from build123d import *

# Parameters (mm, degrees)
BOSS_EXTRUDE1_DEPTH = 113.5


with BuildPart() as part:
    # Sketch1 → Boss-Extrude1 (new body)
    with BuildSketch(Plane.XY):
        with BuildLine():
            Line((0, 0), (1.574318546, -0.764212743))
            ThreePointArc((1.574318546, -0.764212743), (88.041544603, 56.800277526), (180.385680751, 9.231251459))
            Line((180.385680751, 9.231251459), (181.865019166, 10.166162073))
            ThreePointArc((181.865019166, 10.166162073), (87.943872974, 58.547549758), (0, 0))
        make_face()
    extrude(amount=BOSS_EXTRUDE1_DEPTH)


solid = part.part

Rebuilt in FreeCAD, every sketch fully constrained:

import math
import FreeCAD as App
import Part
import Sketcher
from FreeCAD import Vector
Q = App.Units.Quantity

doc = App.newDocument("Part")
params = doc.addObject("Spreadsheet::Sheet", "Params")
for row, (alias, value) in enumerate([
    ("sketch1_length", "1.75 mm"),
    ("pad1_length", "113.5 mm"),
], start=1):
    params.set(f"A{row}", alias)
    params.set(f"B{row}", "=" + value)
    params.setAlias(f"B{row}", alias)

body = doc.addObject("PartDesign::Body", "Body")

# Sketch on XY plane
sketch1 = body.newObject("Sketcher::SketchObject", "Sketch")
sketch1.AttachmentSupport = (doc.getObject("XY_Plane"), [""])
sketch1.MapMode = "FlatFace"
sketch1.addGeometry(Part.LineSegment(Vector(0, 0, 0), Vector(1.574319, -0.764213, 0)), False)
sketch1.addGeometry(Part.ArcOfCircle(Part.Circle(Vector(93.76085, -45.513811, 0), Vector(0, 0, 1), 102.473817), math.radians(32.292021), math.radians(154.106929)), False)
sketch1.addGeometry(Part.LineSegment(Vector(180.385681, 9.231251, 0), Vector(181.865019, 10.166162, 0)), False)
sketch1.addGeometry(Part.ArcOfCircle(Part.Circle(Vector(93.76085, -45.513811, 0), Vector(0, 0, 1), 104.223817), math.radians(32.292021), math.radians(154.106929)), False)
sketch1.addConstraint(Sketcher.Constraint("Coincident", 0, 2, 1, 2))
sketch1.addConstraint(Sketcher.Constraint("Coincident", 1, 1, 2, 1))
sketch1.addConstraint(Sketcher.Constraint("Coincident", 2, 2, 3, 1))
sketch1.addConstraint(Sketcher.Constraint("Coincident", 3, 2, 0, 1))
sketch1.addConstraint(Sketcher.Constraint("Coincident", 3, 2, -1, 1))
sketch1.addConstraint(Sketcher.Constraint("Coincident", 3, 3, 1, 3))
sketch1.addConstraint(Sketcher.Constraint("Distance", 0, Q("1.75 mm")))
sketch1.addConstraint(Sketcher.Constraint("Radius", 1, Q("102.473817 mm")))
sketch1.addConstraint(Sketcher.Constraint("DistanceY", 1, 3, 0, 2, Q("44.749598 mm")))
sketch1.addConstraint(Sketcher.Constraint("DistanceX", 0, 2, 2, 2, Q("180.290701 mm")))
sketch1.addConstraint(Sketcher.Constraint("DistanceX", -1, 1, 1, 3, Q("93.76085 mm")))
sketch1.addConstraint(Sketcher.Constraint("DistanceX", -1, 1, 1, 1, Q("180.385681 mm")))
sketch1.setExpression("Constraints[6]", "Params.sketch1_length")
pad1 = body.newObject("PartDesign::Pad", "Pad")
pad1.Profile = sketch1
pad1.setExpression("Length", "Params.pad1_length")

doc.recompute()
